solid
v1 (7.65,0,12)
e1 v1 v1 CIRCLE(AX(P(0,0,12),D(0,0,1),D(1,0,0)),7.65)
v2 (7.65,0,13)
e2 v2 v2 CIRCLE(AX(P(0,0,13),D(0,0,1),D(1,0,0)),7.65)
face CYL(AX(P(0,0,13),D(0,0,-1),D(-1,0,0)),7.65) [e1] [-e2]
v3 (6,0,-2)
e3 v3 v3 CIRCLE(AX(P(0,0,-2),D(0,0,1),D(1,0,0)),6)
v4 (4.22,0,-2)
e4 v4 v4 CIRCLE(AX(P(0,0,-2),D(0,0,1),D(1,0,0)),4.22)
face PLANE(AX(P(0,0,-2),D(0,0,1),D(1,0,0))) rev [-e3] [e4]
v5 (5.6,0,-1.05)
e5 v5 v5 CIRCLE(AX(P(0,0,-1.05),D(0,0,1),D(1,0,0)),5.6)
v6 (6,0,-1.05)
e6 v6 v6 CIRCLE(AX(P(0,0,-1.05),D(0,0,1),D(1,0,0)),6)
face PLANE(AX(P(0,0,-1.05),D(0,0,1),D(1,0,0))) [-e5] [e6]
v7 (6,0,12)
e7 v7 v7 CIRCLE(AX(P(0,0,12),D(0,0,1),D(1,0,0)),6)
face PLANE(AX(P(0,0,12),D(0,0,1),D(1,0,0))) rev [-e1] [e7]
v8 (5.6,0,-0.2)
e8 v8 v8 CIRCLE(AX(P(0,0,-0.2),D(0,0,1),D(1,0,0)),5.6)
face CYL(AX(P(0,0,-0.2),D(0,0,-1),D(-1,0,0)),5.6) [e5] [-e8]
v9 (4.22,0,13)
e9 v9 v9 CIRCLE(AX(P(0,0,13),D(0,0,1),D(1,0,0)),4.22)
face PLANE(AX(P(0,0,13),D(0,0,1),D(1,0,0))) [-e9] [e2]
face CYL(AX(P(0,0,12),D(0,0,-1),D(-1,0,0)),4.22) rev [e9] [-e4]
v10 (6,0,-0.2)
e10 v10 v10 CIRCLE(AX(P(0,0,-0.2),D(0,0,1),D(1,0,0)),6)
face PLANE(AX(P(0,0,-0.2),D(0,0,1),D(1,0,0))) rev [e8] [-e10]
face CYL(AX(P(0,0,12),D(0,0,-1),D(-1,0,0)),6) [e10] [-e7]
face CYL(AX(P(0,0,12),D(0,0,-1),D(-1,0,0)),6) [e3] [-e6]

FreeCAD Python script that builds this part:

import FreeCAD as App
import Part
import Sketcher

V = App.Vector
Q = App.Units.Quantity

doc = App.newDocument("Part")
body = doc.addObject("PartDesign::Body", "Body")

sketch1 = body.newObject("Sketcher::SketchObject", "Sketch")
sketch1.AttachmentSupport = (doc.getObject("XY_Plane"), [""])
sketch1.MapMode = "FlatFace"
sketch1.AttachmentOffset = App.Placement(V(0, 0, -2), App.Rotation())
sketch1.addGeometry([
    Part.Circle(V(0, 0, 0), V(0, 0, 1), 6),
    Part.Circle(V(0, 0, 0), V(0, 0, 1), 4.2),
], False)
sketch1.addConstraint([
    Sketcher.Constraint("Coincident", 0, 3, -1, 1),
    Sketcher.Constraint("Coincident", 1, 3, -1, 1),
    Sketcher.Constraint("Diameter", 0, Q("12 mm")),
    Sketcher.Constraint("Diameter", 1, Q("8.44 mm")),
])
pad1 = body.newObject("PartDesign::Pad", "Pad")
pad1.Profile = sketch1
pad1.Length = 14

sketch2 = body.newObject("Sketcher::SketchObject", "Sketch001")
sketch2.AttachmentSupport = (doc.getObject("XY_Plane"), [""])
sketch2.MapMode = "FlatFace"
sketch2.AttachmentOffset = App.Placement(V(0, 0, 12), App.Rotation())
sketch2.addGeometry([
    Part.Circle(V(0, 0, 0), V(0, 0, 1), 7.7),
    Part.Circle(V(0, 0, 0), V(0, 0, 1), 4.2),
], False)
sketch2.addConstraint([
    Sketcher.Constraint("Coincident", 0, 3, -1, 1),
    Sketcher.Constraint("Coincident", 1, 3, -1, 1),
    Sketcher.Constraint("Diameter", 0, Q("15.3 mm")),
    Sketcher.Constraint("Diameter", 1, Q("8.44 mm")),
])
pad2 = body.newObject("PartDesign::Pad", "Pad001")
pad2.Profile = sketch2
pad2.Length = 1

sketch3 = body.newObject("Sketcher::SketchObject", "Sketch002")
sketch3.AttachmentSupport = (doc.getObject("XY_Plane"), [""])
sketch3.MapMode = "FlatFace"
sketch3.AttachmentOffset = App.Placement(V(0, 0, -1.05), App.Rotation())
sketch3.addGeometry([
    Part.Circle(V(0, 0, 0), V(0, 0, 1), 6),
    Part.Circle(V(0, 0, 0), V(0, 0, 1), 6),
], False)
sketch3.addConstraint([
    Sketcher.Constraint("Coincident", 0, 3, -1, 1),
    Sketcher.Constraint("Coincident", 1, 3, -1, 1),
    Sketcher.Constraint("Diameter", 0, Q("12.2 mm")),
    Sketcher.Constraint("Diameter", 1, Q("11.2 mm")),
])
pocket1 = body.newObject("PartDesign::Pocket", "Pocket")
pocket1.Profile = sketch3
pocket1.Length = 0.85
pocket1.Reversed = True

doc.recompute()
